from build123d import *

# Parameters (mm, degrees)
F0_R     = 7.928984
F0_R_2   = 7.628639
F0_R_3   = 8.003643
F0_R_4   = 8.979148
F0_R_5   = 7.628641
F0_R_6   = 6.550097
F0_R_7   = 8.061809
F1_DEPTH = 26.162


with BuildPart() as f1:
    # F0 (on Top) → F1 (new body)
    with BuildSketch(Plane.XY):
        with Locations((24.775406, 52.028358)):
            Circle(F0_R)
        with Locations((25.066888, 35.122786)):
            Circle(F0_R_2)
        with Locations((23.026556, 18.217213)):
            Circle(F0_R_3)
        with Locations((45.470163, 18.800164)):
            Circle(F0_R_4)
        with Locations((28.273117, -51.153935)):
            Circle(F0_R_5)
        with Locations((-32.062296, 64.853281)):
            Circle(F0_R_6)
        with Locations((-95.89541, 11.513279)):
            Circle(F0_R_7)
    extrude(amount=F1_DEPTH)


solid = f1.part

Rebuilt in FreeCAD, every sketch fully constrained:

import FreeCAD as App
import Part
import Sketcher
from FreeCAD import Vector
Q = App.Units.Quantity

doc = App.newDocument("Part")
body = doc.addObject("PartDesign::Body", "Body")
body.AllowCompound = True

# Sketch on XY plane
sketch1 = doc.addObject("Sketcher::SketchObject", "Sketch")
body.addObject(sketch1)
sketch1.AttachmentSupport = (doc.XY_Plane, [""])
sketch1.MapMode = "FlatFace"
sketch1.addGeometry([
    Part.Circle(Vector(25, 52, 0), Vector(0, 0, 1), 8),  # 0
    Part.Circle(Vector(25, 35, 0), Vector(0, 0, 1), 8),  # 1
    Part.Circle(Vector(23, 18, 0), Vector(0, 0, 1), 8),  # 2
    Part.Circle(Vector(45, 19, 0), Vector(0, 0, 1), 9),  # 3
    Part.Circle(Vector(28, -51, 0), Vector(0, 0, 1), 8),  # 4
    Part.Circle(Vector(-32, 65, 0), Vector(0, 0, 1), 7),  # 5
    Part.Circle(Vector(-96, 12, 0), Vector(0, 0, 1), 8),  # 6
], False)
sketch1.addConstraint([
    Sketcher.Constraint("DistanceY", 6, 3, 5, 3, Q("2.1000001 in")),
    Sketcher.Constraint("Diameter", 6, 16.123618),
    Sketcher.Constraint("Diameter", 0, 15.857968),
    Sketcher.Constraint("Diameter", 1, 15.257278),
    Sketcher.Constraint("Diameter", 2, 16.007286),
    Sketcher.Constraint("Diameter", 3, 17.958296),
    Sketcher.Constraint("Diameter", 4, 15.257282),
    Sketcher.Constraint("Diameter", 5, 13.100194),
    Sketcher.Constraint("DistanceY", 4, 3, 3, 3, 69.954099),
    Sketcher.Constraint("DistanceX", 6, 3, 1, 3, 120.962298),
    Sketcher.Constraint("DistanceY", -1, 1, 5, 3, 64.853281),
    Sketcher.Constraint("DistanceX", 6, 3, -1, 1, 95.89541),
    Sketcher.Constraint("DistanceX", 0, 3, 1, 3, 0.291482),
    Sketcher.Constraint("DistanceY", 1, 3, 0, 3, 16.905572),
    Sketcher.Constraint("DistanceX", 2, 3, 1, 3, 2.040332),
    Sketcher.Constraint("DistanceY", 2, 3, 3, 3, 0.582951),
    Sketcher.Constraint("DistanceY", 3, 3, 1, 3, 16.322622),
    Sketcher.Constraint("DistanceX", 2, 3, 4, 3, 5.246561),
    Sketcher.Constraint("DistanceX", 5, 3, 3, 3, 77.532459),
    Sketcher.Constraint("DistanceY", 6, 3, 0, 3, 40.515079),
    Sketcher.Constraint("DistanceX", -1, 1, 3, 3, 45.470163),
])
pad1 = doc.addObject("PartDesign::Pad", "Pad")
body.addObject(pad1)
pad1.Profile = sketch1
pad1.Length = Q("1.03 in")

doc.recompute()
